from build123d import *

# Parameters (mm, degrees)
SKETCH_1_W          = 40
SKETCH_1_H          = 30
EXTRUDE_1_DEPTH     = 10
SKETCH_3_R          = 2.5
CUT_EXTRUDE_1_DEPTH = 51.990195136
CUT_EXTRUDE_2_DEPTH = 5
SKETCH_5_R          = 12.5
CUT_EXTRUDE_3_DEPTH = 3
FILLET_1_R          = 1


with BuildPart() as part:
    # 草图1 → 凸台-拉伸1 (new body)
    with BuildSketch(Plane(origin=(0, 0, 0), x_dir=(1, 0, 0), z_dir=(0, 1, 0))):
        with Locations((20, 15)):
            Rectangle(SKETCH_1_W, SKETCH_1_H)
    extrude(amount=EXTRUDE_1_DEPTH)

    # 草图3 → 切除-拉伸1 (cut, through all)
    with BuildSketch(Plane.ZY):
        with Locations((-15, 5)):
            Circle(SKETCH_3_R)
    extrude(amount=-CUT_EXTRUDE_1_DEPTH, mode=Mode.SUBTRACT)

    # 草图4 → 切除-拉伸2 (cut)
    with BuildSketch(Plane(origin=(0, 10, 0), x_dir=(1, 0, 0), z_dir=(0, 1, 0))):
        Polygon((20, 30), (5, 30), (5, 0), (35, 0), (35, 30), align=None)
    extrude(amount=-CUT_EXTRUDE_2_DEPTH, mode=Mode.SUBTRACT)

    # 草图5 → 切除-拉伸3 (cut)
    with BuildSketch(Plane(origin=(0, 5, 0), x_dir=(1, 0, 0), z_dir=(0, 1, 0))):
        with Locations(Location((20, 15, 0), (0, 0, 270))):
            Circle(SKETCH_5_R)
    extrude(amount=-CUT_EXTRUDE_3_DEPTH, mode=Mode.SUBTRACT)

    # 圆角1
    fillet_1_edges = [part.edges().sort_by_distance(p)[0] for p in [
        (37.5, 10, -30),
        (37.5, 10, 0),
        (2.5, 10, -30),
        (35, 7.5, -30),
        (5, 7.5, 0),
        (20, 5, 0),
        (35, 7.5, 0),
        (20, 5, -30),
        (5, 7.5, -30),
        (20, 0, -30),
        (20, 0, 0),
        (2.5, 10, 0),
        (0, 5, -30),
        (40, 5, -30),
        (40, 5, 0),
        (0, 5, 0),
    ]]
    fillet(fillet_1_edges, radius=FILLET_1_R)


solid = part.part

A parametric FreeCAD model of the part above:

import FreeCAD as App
import Part
import Sketcher

V = App.Vector


def edges_at(feature, points):
    """Names of the edges that pass closest to the given points."""
    edges = feature.Shape.Edges
    near = lambda p: min(range(len(edges)), key=lambda i: edges[i].distToShape(Part.Vertex(*p))[0])
    return sorted({f"Edge{near(p) + 1}" for p in points})


def add_polygon(sketch, points):
    """Adds a closed chain of lines whose ends are joined by coincident constraints."""
    first, n = sketch.GeometryCount, len(points)
    for a, b in zip(points, points[1:] + points[:1]):
        sketch.addGeometry(Part.LineSegment(App.Vector(*a, 0), App.Vector(*b, 0)), False)
    for i in range(n):
        sketch.addConstraint(Sketcher.Constraint("Coincident", first + i, 2, first + (i + 1) % n, 1))

doc = App.newDocument("Part")
params = doc.addObject("Spreadsheet::Sheet", "Params")
for row, (alias, value) in enumerate([
    ("sketch1_width", "40 mm"),
    ("sketch1_height", "30 mm"),
    ("pad1_length", "10 mm"),
    ("sketch2_diameter", "5 mm"),
    ("sketch3_width", "30 mm"),
    ("pocket2_length", "5 mm"),
    ("sketch4_diameter", "25 mm"),
    ("pocket3_length", "3 mm"),
    ("fillet_radius", "1 mm"),
], start=1):
    params.set(f"A{row}", alias)
    params.set(f"B{row}", "=" + value)
    params.setAlias(f"B{row}", alias)

body = doc.addObject("PartDesign::Body", "Body")

# Sketch on XZ plane
sketch1 = body.newObject("Sketcher::SketchObject", "Sketch")
sketch1.AttachmentSupport = (doc.getObject("XZ_Plane"), [""])
sketch1.MapMode = "FlatFace"
add_polygon(sketch1, [(0, -30), (0, 0), (40, 0), (40, -30)])  # lines 0-3
sketch1.addConstraint([
    Sketcher.Constraint("Vertical", 0),
    Sketcher.Constraint("Horizontal", 1),
    Sketcher.Constraint("Vertical", 2),
    Sketcher.Constraint("Horizontal", 3),
    Sketcher.Constraint("Coincident", 0, 2, -1, 1),
    Sketcher.Constraint("DistanceX", 1, 1, 1, 2, 40.0),
    Sketcher.Constraint("DistanceY", 0, 1, 0, 2, 30.0),
])
sketch1.setExpression("Constraints[9]", "Params.sketch1_width")
sketch1.setExpression("Constraints[10]", "Params.sketch1_height")
pad1 = body.newObject("PartDesign::Pad", "Pad")
pad1.Profile = sketch1
pad1.setExpression("Length", "Params.pad1_length")
pad1.Reversed = True

# Sketch on YZ plane
sketch2 = body.newObject("Sketcher::SketchObject", "Sketch001")
sketch2.AttachmentSupport = (doc.getObject("YZ_Plane"), [""])
sketch2.MapMode = "FlatFace"
sketch2.addGeometry(Part.Circle(V(5, -15, 0), V(0, 0, 1), 2.5), False)
sketch2.addConstraint([
    Sketcher.Constraint("Diameter", 0, 5.0),
    Sketcher.Constraint("DistanceX", -1, 1, 0, 3, 5.0),
    Sketcher.Constraint("DistanceY", 0, 3, -1, 1, 15.0),
])
sketch2.setExpression("Constraints[0]", "Params.sketch2_diameter")
pocket1 = body.newObject("PartDesign::Pocket", "Pocket")
pocket1.Profile = sketch2
pocket1.Type = "ThroughAll"
pocket1.Reversed = True

# Sketch on XZ plane
sketch3 = body.newObject("Sketcher::SketchObject", "Sketch002")
sketch3.AttachmentSupport = (doc.getObject("XZ_Plane"), [""])
sketch3.MapMode = "FlatFace"
sketch3.AttachmentOffset = App.Placement(V(0, 0, -10), App.Rotation())
add_polygon(sketch3, [(5, -30), (5, 0), (35, 0), (35, -30)])  # lines 0-3
sketch3.addConstraint([
    Sketcher.Constraint("Vertical", 0),
    Sketcher.Constraint("Horizontal", 1),
    Sketcher.Constraint("Vertical", 2),
    Sketcher.Constraint("Horizontal", 3),
    Sketcher.Constraint("PointOnObject", 0, 2, -1),
    Sketcher.Constraint("Equal", 3, 0),
    Sketcher.Constraint("DistanceX", 1, 1, 1, 2, 30.0),
    Sketcher.Constraint("DistanceX", -1, 1, 0, 2, 5.0),
])
sketch3.setExpression("Constraints[10]", "Params.sketch3_width")
pocket2 = body.newObject("PartDesign::Pocket", "Pocket001")
pocket2.Profile = sketch3
pocket2.setExpression("Length", "Params.pocket2_length")
pocket2.Reversed = True

# Sketch on XZ plane
sketch4 = body.newObject("Sketcher::SketchObject", "Sketch003")
sketch4.AttachmentSupport = (doc.getObject("XZ_Plane"), [""])
sketch4.MapMode = "FlatFace"
sketch4.AttachmentOffset = App.Placement(V(0, 0, -5), App.Rotation())
sketch4.addGeometry(Part.Circle(V(20, -15, 0), V(0, 0, 1), 12), False)
sketch4.addConstraint([
    Sketcher.Constraint("Diameter", 0, 25.0),
    Sketcher.Constraint("DistanceX", -1, 1, 0, 3, 20.0),
    Sketcher.Constraint("DistanceY", 0, 3, -1, 1, 15.0),
])
sketch4.setExpression("Constraints[0]", "Params.sketch4_diameter")
pocket3 = body.newObject("PartDesign::Pocket", "Pocket002")
pocket3.Profile = sketch4
pocket3.setExpression("Length", "Params.pocket3_length")
pocket3.Reversed = True
doc.recompute()

fillet = body.newObject("PartDesign::Fillet", "Fillet")
fillet.Base = (pocket3, edges_at(pocket3, [
    (37.5, 10, -30),
    (37.5, 10, 0),
    (2.5, 10, -30),
    (35, 7.5, -30),
    (5, 7.5, 0),
    (20, 5, 0),
    (35, 7.5, 0),
    (20, 5, -30),
    (5, 7.5, -30),
    (20, 0, -30),
    (20, 0, 0),
    (2.5, 10, 0),
    (0, 5, -30),
    (40, 5, -30),
    (40, 5, 0),
    (0, 5, 0),
]))
fillet.setExpression("Radius", "Params.fillet_radius")

doc.recompute()
